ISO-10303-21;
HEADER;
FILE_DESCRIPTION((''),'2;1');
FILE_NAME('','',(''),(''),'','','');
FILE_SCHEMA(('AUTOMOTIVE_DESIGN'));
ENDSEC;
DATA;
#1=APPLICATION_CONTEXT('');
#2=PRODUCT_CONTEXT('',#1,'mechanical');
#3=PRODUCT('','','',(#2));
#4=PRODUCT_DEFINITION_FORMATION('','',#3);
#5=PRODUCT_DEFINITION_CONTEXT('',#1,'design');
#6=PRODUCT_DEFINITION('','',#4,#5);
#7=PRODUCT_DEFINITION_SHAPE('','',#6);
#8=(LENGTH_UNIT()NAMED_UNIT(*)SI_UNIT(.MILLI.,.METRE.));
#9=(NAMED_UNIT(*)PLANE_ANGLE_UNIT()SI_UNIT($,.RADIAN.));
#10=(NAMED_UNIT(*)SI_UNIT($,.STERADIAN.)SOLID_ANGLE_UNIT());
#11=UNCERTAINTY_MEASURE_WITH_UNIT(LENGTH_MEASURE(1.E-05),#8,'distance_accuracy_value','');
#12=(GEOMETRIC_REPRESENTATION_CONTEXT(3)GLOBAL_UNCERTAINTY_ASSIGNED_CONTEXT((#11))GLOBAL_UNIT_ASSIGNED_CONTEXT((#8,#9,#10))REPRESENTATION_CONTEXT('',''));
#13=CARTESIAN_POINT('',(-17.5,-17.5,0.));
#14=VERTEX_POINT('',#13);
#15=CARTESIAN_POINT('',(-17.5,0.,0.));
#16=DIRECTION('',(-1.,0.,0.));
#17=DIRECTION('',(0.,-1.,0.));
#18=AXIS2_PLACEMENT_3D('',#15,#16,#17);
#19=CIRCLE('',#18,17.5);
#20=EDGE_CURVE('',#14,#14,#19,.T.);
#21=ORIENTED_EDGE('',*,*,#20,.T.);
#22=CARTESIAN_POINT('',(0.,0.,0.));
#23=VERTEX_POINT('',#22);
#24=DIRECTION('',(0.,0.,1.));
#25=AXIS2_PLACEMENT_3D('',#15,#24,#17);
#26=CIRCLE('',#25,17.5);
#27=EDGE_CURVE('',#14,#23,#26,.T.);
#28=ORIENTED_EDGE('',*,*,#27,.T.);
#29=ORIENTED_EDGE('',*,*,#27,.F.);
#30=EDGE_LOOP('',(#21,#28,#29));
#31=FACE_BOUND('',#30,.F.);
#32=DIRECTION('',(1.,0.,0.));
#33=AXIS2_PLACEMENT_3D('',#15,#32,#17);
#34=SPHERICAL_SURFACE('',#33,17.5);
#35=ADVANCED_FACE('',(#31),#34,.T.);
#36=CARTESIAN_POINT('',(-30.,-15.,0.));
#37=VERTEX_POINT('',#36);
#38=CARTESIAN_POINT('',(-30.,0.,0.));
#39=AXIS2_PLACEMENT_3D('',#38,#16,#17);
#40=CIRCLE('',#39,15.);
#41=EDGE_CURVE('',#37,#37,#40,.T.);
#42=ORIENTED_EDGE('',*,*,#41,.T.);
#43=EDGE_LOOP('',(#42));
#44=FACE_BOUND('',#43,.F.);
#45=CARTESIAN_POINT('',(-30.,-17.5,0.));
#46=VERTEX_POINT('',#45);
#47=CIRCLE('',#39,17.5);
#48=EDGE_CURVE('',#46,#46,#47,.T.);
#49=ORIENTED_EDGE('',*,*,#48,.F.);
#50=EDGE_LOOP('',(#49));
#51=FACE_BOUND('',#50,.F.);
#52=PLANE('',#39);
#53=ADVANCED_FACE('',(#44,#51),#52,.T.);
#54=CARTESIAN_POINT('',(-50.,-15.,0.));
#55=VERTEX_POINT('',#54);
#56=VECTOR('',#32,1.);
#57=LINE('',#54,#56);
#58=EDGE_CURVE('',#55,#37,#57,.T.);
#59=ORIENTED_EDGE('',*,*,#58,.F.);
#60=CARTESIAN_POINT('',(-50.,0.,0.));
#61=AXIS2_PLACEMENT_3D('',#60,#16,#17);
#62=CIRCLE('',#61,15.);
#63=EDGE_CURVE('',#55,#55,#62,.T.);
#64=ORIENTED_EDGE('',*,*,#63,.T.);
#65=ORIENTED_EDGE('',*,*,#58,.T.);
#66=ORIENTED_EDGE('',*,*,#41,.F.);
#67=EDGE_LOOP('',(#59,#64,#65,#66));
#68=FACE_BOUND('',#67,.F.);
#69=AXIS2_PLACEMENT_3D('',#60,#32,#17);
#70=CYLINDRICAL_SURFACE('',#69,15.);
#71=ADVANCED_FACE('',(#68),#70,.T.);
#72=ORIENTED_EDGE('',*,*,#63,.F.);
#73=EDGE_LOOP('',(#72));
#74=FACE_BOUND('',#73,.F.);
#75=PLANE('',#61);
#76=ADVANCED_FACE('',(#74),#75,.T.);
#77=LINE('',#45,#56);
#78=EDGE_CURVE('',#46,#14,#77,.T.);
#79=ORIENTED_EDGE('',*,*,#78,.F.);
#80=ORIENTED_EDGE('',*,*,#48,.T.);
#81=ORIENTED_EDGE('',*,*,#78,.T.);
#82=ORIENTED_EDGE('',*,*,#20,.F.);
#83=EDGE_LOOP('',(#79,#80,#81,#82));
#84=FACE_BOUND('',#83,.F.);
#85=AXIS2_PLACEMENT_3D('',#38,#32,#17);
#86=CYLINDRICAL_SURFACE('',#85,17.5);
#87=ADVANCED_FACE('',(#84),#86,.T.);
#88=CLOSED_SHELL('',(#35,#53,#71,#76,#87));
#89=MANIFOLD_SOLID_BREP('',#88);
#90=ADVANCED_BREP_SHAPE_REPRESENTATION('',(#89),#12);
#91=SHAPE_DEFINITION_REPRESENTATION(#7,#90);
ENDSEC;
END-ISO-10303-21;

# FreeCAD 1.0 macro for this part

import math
import FreeCAD as App
import Part
import Sketcher

V = App.Vector

doc = App.newDocument("Part")
body = doc.addObject("PartDesign::Body", "Body")

# Sketch on XY plane
sketch1 = doc.addObject("Sketcher::SketchObject", "Sketch")
body.addObject(sketch1)
sketch1.AttachmentSupport = (doc.XY_Plane, [""])
sketch1.MapMode = "FlatFace"
sketch1.addGeometry(Part.LineSegment(V(0, 0, 0), V(-50, 0, 0)), False)
sketch1.addGeometry(Part.LineSegment(V(-50, 0, 0), V(-50, -15, 0)), False)
sketch1.addGeometry(Part.LineSegment(V(-50, -15, 0), V(-30, -15, 0)), False)
sketch1.addGeometry(Part.LineSegment(V(-30, -15, 0), V(-30, -17.5, 0)), False)
sketch1.addGeometry(Part.LineSegment(V(-30, -17.5, 0), V(-17.5, -17.5, 0)), False)
sketch1.addGeometry(Part.ArcOfCircle(Part.Circle(V(-17.5, 0, 0), V(0, 0, 1), 17.5), math.radians(-90), math.radians(0)), False)
sketch1.addConstraint(Sketcher.Constraint("Coincident", 0, 2, 1, 1))
sketch1.addConstraint(Sketcher.Constraint("Coincident", 1, 2, 2, 1))
sketch1.addConstraint(Sketcher.Constraint("Coincident", 2, 2, 3, 1))
sketch1.addConstraint(Sketcher.Constraint("Coincident", 3, 2, 4, 1))
sketch1.addConstraint(Sketcher.Constraint("Tangent", 4, 2, 5, 1))
sketch1.addConstraint(Sketcher.Constraint("Coincident", 5, 2, 0, 1))
sketch1.addConstraint(Sketcher.Constraint("Horizontal", 0))
sketch1.addConstraint(Sketcher.Constraint("Vertical", 1))
sketch1.addConstraint(Sketcher.Constraint("Horizontal", 2))
sketch1.addConstraint(Sketcher.Constraint("Vertical", 3))
sketch1.addConstraint(Sketcher.Constraint("Horizontal", 4))
sketch1.addConstraint(Sketcher.Constraint("Coincident", 5, 2, -1, 1))
sketch1.addConstraint(Sketcher.Constraint("PointOnObject", 5, 3, -1))
sketch1.addConstraint(Sketcher.Constraint("Radius", 5, 17.5))
sketch1.addConstraint(Sketcher.Constraint("DistanceX", 0, 2, 0, 1, 50.0))
sketch1.addConstraint(Sketcher.Constraint("DistanceX", 2, 1, 2, 2, 20.0))
sketch1.addConstraint(Sketcher.Constraint("DistanceY", 1, 2, 1, 1, 15.0))
revolution = doc.addObject("PartDesign::Revolution", "Revolution")
body.addObject(revolution)
revolution.Profile = sketch1
revolution.ReferenceAxis = (sketch1, ["H_Axis"])
revolution.Angle = 360

doc.recompute()
